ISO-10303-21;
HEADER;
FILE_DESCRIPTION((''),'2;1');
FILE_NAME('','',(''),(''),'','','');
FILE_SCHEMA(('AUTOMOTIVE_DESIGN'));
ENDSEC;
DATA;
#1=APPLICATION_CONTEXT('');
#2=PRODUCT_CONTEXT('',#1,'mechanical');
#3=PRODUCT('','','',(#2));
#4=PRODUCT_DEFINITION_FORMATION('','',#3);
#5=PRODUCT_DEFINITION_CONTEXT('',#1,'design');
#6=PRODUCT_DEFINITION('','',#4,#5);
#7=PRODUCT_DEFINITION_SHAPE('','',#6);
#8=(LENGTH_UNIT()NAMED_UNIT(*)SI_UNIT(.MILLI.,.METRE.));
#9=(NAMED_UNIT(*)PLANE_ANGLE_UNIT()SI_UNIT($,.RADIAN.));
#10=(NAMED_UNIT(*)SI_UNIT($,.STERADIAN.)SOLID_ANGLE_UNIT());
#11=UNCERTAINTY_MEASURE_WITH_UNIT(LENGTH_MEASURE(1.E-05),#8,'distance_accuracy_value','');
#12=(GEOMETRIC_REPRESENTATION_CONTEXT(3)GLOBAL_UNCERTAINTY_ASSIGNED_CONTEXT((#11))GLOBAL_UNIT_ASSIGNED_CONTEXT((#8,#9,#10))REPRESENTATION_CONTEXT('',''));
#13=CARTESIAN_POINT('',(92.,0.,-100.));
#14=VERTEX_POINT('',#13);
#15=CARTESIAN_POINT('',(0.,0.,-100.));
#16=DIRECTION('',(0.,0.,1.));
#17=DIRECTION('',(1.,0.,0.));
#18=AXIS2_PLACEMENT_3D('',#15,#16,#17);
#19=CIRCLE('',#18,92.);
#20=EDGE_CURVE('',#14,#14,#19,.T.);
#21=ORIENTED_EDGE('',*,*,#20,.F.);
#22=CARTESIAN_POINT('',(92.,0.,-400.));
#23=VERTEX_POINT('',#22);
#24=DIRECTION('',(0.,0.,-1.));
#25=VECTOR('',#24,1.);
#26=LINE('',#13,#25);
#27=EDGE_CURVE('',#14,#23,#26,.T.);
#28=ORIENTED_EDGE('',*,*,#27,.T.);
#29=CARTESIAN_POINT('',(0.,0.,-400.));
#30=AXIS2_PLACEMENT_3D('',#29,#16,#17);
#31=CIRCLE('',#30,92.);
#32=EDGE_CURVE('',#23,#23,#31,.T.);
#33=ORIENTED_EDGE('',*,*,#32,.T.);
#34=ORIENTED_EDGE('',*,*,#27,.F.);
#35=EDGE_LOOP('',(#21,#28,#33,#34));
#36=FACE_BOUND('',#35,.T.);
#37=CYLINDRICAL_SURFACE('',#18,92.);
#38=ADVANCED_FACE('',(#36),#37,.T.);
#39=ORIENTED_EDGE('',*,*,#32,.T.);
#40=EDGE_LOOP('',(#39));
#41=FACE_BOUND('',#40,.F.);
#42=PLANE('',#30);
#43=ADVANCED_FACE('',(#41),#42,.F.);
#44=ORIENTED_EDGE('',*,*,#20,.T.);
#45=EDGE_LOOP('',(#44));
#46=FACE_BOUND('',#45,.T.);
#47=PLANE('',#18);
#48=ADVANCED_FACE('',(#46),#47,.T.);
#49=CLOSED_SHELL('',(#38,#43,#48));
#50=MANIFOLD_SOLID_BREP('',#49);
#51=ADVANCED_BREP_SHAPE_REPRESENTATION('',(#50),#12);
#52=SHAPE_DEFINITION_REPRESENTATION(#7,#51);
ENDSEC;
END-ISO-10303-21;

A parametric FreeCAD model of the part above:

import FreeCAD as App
import Part
import Sketcher

V = App.Vector

doc = App.newDocument("Part")
body = doc.addObject("PartDesign::Body", "Body")

# Sketch on XY plane
sketch1 = body.newObject("Sketcher::SketchObject", "Sketch")
sketch1.AttachmentSupport = (doc.getObject("XY_Plane"), [""])
sketch1.MapMode = "FlatFace"
sketch1.AttachmentOffset = App.Placement(V(0, 0, -100), App.Rotation())
sketch1.addGeometry(Part.Circle(V(0, 0, 0), V(0, 0, 1), 92), False)
sketch1.addConstraint(Sketcher.Constraint("Coincident", 0, 3, -1, 1))
sketch1.addConstraint(Sketcher.Constraint("Diameter", 0, 184.0))
pad1 = body.newObject("PartDesign::Pad", "Pad")
pad1.Profile = sketch1
pad1.Length = 300
pad1.Reversed = True

doc.recompute()
